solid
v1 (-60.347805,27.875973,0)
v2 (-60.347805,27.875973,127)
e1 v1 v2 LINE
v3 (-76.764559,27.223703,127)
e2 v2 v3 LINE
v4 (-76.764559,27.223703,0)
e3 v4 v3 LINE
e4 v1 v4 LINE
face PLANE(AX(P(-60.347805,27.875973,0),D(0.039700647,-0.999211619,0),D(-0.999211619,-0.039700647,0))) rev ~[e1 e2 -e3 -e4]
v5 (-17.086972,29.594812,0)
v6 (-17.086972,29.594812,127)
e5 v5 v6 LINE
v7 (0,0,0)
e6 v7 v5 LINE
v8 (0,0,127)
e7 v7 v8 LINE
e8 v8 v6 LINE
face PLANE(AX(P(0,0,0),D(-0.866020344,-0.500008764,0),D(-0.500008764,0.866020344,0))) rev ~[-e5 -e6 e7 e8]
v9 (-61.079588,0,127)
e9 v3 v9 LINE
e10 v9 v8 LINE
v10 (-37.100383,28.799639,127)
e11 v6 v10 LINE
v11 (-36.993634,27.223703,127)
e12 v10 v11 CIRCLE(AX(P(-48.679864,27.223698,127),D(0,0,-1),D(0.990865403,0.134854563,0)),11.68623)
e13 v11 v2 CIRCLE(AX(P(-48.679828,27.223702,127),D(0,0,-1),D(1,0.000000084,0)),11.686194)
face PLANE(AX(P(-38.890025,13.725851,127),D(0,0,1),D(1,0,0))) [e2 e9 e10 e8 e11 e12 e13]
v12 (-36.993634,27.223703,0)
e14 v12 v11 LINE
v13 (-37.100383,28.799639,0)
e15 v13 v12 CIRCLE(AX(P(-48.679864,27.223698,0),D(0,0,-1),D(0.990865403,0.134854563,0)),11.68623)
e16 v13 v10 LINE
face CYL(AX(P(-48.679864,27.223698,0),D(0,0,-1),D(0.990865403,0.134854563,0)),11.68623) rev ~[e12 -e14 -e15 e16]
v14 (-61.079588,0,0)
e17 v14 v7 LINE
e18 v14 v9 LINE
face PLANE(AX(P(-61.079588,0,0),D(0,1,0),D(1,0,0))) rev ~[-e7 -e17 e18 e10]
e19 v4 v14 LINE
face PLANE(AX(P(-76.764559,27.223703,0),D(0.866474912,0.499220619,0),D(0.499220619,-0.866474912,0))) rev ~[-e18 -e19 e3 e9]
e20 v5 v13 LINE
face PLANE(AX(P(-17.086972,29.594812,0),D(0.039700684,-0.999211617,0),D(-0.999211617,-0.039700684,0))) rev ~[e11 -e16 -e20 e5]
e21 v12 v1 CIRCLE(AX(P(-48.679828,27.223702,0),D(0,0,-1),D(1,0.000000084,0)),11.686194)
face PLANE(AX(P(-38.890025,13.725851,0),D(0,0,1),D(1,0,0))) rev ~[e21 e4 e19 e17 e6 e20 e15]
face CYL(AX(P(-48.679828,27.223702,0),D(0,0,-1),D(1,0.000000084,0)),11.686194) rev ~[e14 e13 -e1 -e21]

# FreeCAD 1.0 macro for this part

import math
import FreeCAD as App
import Part
import Sketcher

V = App.Vector

doc = App.newDocument("Part")
params = doc.addObject("Spreadsheet::Sheet", "Params")
for row, (alias, value) in enumerate([
    ("pad1_length", "5 in"),
], start=1):
    params.set(f"A{row}", alias)
    params.set(f"B{row}", "=" + value)
    params.setAlias(f"B{row}", alias)

body = doc.addObject("PartDesign::Body", "Body")

sketch1 = body.newObject("Sketcher::SketchObject", "Sketch")
sketch1.AttachmentSupport = (doc.getObject("XY_Plane"), [""])
sketch1.MapMode = "FlatFace"
sketch1.addGeometry([
    Part.LineSegment(V(-61.079588, 0, 0), V(0, 0, 0)),
    Part.LineSegment(V(0, 0, 0), V(-17.086972, 29.594812, 0)),
    Part.LineSegment(V(-17.086972, 29.594812, 0), V(-37.100383, 28.799639, 0)),
    Part.ArcOfCircle(Part.Circle(V(-48.679864, 27.223698, 0), V(0, 0, 1), 11.68623), math.radians(0.000027), math.radians(7.75021)),
    Part.ArcOfCircle(Part.Circle(V(-48.679828, 27.223702, 0), V(0, 0, 1), 11.686194), math.radians(176.800344), math.radians(360.000005)),
    Part.LineSegment(V(-60.347805, 27.875973, 0), V(-76.764559, 27.223703, 0)),
    Part.LineSegment(V(-76.764559, 27.223703, 0), V(-61.079588, 0, 0)),
], False)
sketch1.addConstraint([
    Sketcher.Constraint("Coincident", 0, 2, 1, 1),
    Sketcher.Constraint("Coincident", 1, 2, 2, 1),
    Sketcher.Constraint("Coincident", 2, 2, 3, 2),
    Sketcher.Constraint("Tangent", 3, 1, 4, 2),
    Sketcher.Constraint("Coincident", 4, 1, 5, 1),
    Sketcher.Constraint("Coincident", 5, 2, 6, 1),
    Sketcher.Constraint("Coincident", 6, 2, 0, 1),
    Sketcher.Constraint("Horizontal", 0),
    Sketcher.Constraint("Coincident", 0, 2, -1, 1),
    Sketcher.Constraint("Parallel", 2, 5),
    Sketcher.Constraint("Horizontal", 4, 3, 3, 1),
    Sketcher.Constraint("Horizontal", 3, 1, 5, 2),
    Sketcher.Constraint("Radius", 3, 11.68623),
    Sketcher.Constraint("Radius", 4, 11.686194),
    Sketcher.Constraint("Distance", 2, 20.029202),
    Sketcher.Constraint("DistanceX", 0, 1, 0, 2, 61.079588),
    Sketcher.Constraint("DistanceX", 4, 3, -1, 1, 48.679828),
    Sketcher.Constraint("DistanceX", 1, 2, -1, 1, 17.086972),
    Sketcher.Constraint("DistanceY", -1, 1, 2, 2, 28.799639),
    Sketcher.Constraint("DistanceX", 5, 2, -1, 1, 76.764559),
    Sketcher.Constraint("DistanceY", 4, 3, 1, 2, 2.37111),
])
pad1 = body.newObject("PartDesign::Pad", "Pad")
pad1.Profile = sketch1
pad1.setExpression("Length", "Params.pad1_length")

doc.recompute()
